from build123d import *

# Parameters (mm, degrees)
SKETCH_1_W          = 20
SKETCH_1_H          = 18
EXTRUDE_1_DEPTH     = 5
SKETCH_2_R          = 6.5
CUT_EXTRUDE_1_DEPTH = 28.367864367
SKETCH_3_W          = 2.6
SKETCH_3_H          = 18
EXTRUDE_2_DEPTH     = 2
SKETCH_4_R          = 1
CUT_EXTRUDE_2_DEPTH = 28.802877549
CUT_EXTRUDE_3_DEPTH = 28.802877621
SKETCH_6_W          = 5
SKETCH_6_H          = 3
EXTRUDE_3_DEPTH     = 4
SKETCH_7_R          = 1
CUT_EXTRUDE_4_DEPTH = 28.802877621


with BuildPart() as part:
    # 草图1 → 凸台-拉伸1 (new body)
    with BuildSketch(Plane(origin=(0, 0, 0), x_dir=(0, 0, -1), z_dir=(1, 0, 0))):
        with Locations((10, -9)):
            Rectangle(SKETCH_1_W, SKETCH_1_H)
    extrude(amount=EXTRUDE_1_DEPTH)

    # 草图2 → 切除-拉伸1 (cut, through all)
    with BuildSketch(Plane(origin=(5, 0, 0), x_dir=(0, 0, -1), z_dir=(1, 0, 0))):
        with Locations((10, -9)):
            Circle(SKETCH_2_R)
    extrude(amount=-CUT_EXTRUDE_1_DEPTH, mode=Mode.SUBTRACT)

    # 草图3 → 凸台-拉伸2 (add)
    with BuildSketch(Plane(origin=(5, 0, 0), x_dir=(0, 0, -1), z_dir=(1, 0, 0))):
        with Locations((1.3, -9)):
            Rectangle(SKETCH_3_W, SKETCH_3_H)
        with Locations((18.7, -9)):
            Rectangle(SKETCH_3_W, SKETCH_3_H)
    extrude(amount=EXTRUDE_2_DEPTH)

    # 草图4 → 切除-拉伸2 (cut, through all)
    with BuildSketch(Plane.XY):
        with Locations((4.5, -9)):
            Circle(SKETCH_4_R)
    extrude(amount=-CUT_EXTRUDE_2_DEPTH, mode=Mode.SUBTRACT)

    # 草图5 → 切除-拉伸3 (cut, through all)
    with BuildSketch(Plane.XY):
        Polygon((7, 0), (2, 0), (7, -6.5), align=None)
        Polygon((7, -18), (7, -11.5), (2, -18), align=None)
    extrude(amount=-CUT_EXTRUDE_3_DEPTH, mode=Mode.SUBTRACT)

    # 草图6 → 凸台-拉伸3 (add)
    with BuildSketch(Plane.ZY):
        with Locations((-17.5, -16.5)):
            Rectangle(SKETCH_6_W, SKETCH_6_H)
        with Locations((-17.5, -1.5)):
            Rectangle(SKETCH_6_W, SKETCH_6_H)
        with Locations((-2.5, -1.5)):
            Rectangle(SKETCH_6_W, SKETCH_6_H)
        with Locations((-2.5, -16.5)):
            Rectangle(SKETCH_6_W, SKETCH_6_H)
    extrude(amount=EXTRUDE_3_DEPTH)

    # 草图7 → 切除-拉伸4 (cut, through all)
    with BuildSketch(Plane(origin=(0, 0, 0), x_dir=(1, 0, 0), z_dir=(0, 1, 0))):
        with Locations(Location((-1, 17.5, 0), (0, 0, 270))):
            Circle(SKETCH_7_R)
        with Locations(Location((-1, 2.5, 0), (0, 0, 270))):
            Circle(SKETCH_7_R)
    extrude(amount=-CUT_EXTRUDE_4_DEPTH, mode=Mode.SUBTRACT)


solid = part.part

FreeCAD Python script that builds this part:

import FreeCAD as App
import Part
import Sketcher
from FreeCAD import Vector

doc = App.newDocument("Part")
params = doc.addObject("Spreadsheet::Sheet", "Params")
for row, (alias, value) in enumerate([
    ("sketch1_width", "18 mm"),
    ("sketch1_height", "20 mm"),
    ("pad1_length", "5 mm"),
    ("sketch2_diameter", "13 mm"),
    ("sketch3_width", "18 mm"),
    ("sketch3_height", "2.6 mm"),
    ("pad2_length", "2 mm"),
    ("sketch4_diameter", "2 mm"),
    ("sketch5_width", "5 mm"),
    ("sketch5_height", "6.5 mm"),
    ("sketch6_width", "3 mm"),
    ("sketch6_height", "5 mm"),
    ("pad3_length", "4 mm"),
    ("sketch7_diameter", "2 mm"),
], start=1):
    params.set(f"A{row}", alias)
    params.set(f"B{row}", "=" + value)
    params.setAlias(f"B{row}", alias)

body = doc.addObject("PartDesign::Body", "Body")

sketch1 = body.newObject("Sketcher::SketchObject", "Sketch")
sketch1.AttachmentSupport = (doc.getObject("YZ_Plane"), [""])
sketch1.MapMode = "FlatFace"
sketch1.addGeometry([
    Part.LineSegment(Vector(0, 0, 0), Vector(-18, 0, 0)),
    Part.LineSegment(Vector(-18, 0, 0), Vector(-18, -20, 0)),
    Part.LineSegment(Vector(-18, -20, 0), Vector(0, -20, 0)),
    Part.LineSegment(Vector(0, -20, 0), Vector(0, 0, 0)),
], False)
sketch1.addConstraint([
    Sketcher.Constraint("Coincident", 0, 2, 1, 1),
    Sketcher.Constraint("Coincident", 1, 2, 2, 1),
    Sketcher.Constraint("Coincident", 2, 2, 3, 1),
    Sketcher.Constraint("Coincident", 3, 2, 0, 1),
    Sketcher.Constraint("Horizontal", 0),
    Sketcher.Constraint("Vertical", 1),
    Sketcher.Constraint("Horizontal", 2),
    Sketcher.Constraint("Vertical", 3),
    Sketcher.Constraint("Coincident", 3, 2, -1, 1),
    Sketcher.Constraint("DistanceX", 0, 2, 0, 1, 18.0),
    Sketcher.Constraint("DistanceY", 1, 2, 1, 1, 20.0),
])
sketch1.setExpression("Constraints[9]", "Params.sketch1_width")
sketch1.setExpression("Constraints[10]", "Params.sketch1_height")
pad1 = body.newObject("PartDesign::Pad", "Pad")
pad1.Profile = sketch1
pad1.setExpression("Length", "Params.pad1_length")

sketch2 = body.newObject("Sketcher::SketchObject", "Sketch001")
sketch2.AttachmentSupport = (doc.getObject("YZ_Plane"), [""])
sketch2.MapMode = "FlatFace"
sketch2.AttachmentOffset = App.Placement(Vector(0, 0, 5), App.Rotation())
sketch2.addGeometry(Part.Circle(Vector(-9, -10, 0), Vector(0, 0, 1), 6.5), False)
sketch2.addConstraint([
    Sketcher.Constraint("Diameter", 0, 13.0),
    Sketcher.Constraint("DistanceX", 0, 3, -1, 1, 9.0),
    Sketcher.Constraint("DistanceY", 0, 3, -1, 1, 10.0),
])
sketch2.setExpression("Constraints[0]", "Params.sketch2_diameter")
pocket1 = body.newObject("PartDesign::Pocket", "Pocket")
pocket1.Profile = sketch2
pocket1.Type = "ThroughAll"

sketch3 = body.newObject("Sketcher::SketchObject", "Sketch002")
sketch3.AttachmentSupport = (doc.getObject("YZ_Plane"), [""])
sketch3.MapMode = "FlatFace"
sketch3.AttachmentOffset = App.Placement(Vector(0, 0, 5), App.Rotation())
sketch3.addGeometry([
    Part.LineSegment(Vector(0, 0, 0), Vector(-18, 0, 0)),
    Part.LineSegment(Vector(-18, 0, 0), Vector(-18, -2.6, 0)),
    Part.LineSegment(Vector(-18, -2.6, 0), Vector(0, -2.6, 0)),
    Part.LineSegment(Vector(0, -2.6, 0), Vector(0, 0, 0)),
    Part.LineSegment(Vector(0, -17.4, 0), Vector(-18, -17.4, 0)),
    Part.LineSegment(Vector(-18, -17.4, 0), Vector(-18, -20, 0)),
    Part.LineSegment(Vector(-18, -20, 0), Vector(0, -20, 0)),
    Part.LineSegment(Vector(0, -20, 0), Vector(0, -17.4, 0)),
], False)
sketch3.addConstraint([
    Sketcher.Constraint("Coincident", 0, 2, 1, 1),
    Sketcher.Constraint("Coincident", 1, 2, 2, 1),
    Sketcher.Constraint("Coincident", 2, 2, 3, 1),
    Sketcher.Constraint("Coincident", 3, 2, 0, 1),
    Sketcher.Constraint("Coincident", 4, 2, 5, 1),
    Sketcher.Constraint("Coincident", 5, 2, 6, 1),
    Sketcher.Constraint("Coincident", 6, 2, 7, 1),
    Sketcher.Constraint("Coincident", 7, 2, 4, 1),
    Sketcher.Constraint("Horizontal", 0),
    Sketcher.Constraint("Vertical", 1),
    Sketcher.Constraint("Horizontal", 2),
    Sketcher.Constraint("Vertical", 3),
    Sketcher.Constraint("Horizontal", 4),
    Sketcher.Constraint("Vertical", 5),
    Sketcher.Constraint("Horizontal", 6),
    Sketcher.Constraint("Vertical", 7),
    Sketcher.Constraint("Coincident", 3, 2, -1, 1),
    Sketcher.Constraint("PointOnObject", 6, 2, -2),
    Sketcher.Constraint("Vertical", 1, 2, 4, 2),
    Sketcher.Constraint("Equal", 3, 5),
    Sketcher.Constraint("DistanceX", 0, 2, 0, 1, 18.0),
    Sketcher.Constraint("DistanceY", 1, 2, 1, 1, 2.6),
    Sketcher.Constraint("DistanceY", 5, 2, -1, 1, 20.0),
])
sketch3.setExpression("Constraints[20]", "Params.sketch3_width")
sketch3.setExpression("Constraints[21]", "Params.sketch3_height")
pad2 = body.newObject("PartDesign::Pad", "Pad001")
pad2.Profile = sketch3
pad2.setExpression("Length", "Params.pad2_length")

sketch4 = body.newObject("Sketcher::SketchObject", "Sketch003")
sketch4.AttachmentSupport = (doc.getObject("XY_Plane"), [""])
sketch4.MapMode = "FlatFace"
sketch4.addGeometry(Part.Circle(Vector(4.5, -9, 0), Vector(0, 0, 1), 1), False)
sketch4.addConstraint([
    Sketcher.Constraint("Diameter", 0, 2.0),
    Sketcher.Constraint("DistanceY", 0, 3, -1, 1, 9.0),
    Sketcher.Constraint("DistanceX", -1, 1, 0, 3, 4.5),
])
sketch4.setExpression("Constraints[0]", "Params.sketch4_diameter")
pocket2 = body.newObject("PartDesign::Pocket", "Pocket001")
pocket2.Profile = sketch4
pocket2.Type = "ThroughAll"

sketch5 = body.newObject("Sketcher::SketchObject", "Sketch004")
sketch5.AttachmentSupport = (doc.getObject("XY_Plane"), [""])
sketch5.MapMode = "FlatFace"
sketch5.addGeometry([
    Part.LineSegment(Vector(7, 0, 0), Vector(2, 0, 0)),
    Part.LineSegment(Vector(2, 0, 0), Vector(7, -6.5, 0)),
    Part.LineSegment(Vector(7, -6.5, 0), Vector(7, 0, 0)),
    Part.LineSegment(Vector(7, -18, 0), Vector(7, -11.5, 0)),
    Part.LineSegment(Vector(7, -11.5, 0), Vector(2, -18, 0)),
    Part.LineSegment(Vector(2, -18, 0), Vector(7, -18, 0)),
], False)
sketch5.addConstraint([
    Sketcher.Constraint("Coincident", 0, 2, 1, 1),
    Sketcher.Constraint("Coincident", 1, 2, 2, 1),
    Sketcher.Constraint("Coincident", 2, 2, 0, 1),
    Sketcher.Constraint("Coincident", 3, 2, 4, 1),
    Sketcher.Constraint("Coincident", 4, 2, 5, 1),
    Sketcher.Constraint("Coincident", 5, 2, 3, 1),
    Sketcher.Constraint("Horizontal", 0),
    Sketcher.Constraint("Vertical", 2),
    Sketcher.Constraint("Vertical", 3),
    Sketcher.Constraint("Horizontal", 5),
    Sketcher.Constraint("PointOnObject", 0, 2, -1),
    Sketcher.Constraint("Vertical", 2, 2, 3, 2),
    Sketcher.Constraint("Vertical", 0, 2, 4, 2),
    Sketcher.Constraint("Equal", 2, 3),
    Sketcher.Constraint("DistanceX", 0, 2, 0, 1, 5.0),
    Sketcher.Constraint("DistanceY", 2, 1, 2, 2, 6.5),
    Sketcher.Constraint("DistanceX", -1, 1, 0, 2, 2.0),
    Sketcher.Constraint("DistanceY", 4, 2, -1, 1, 18.0),
])
sketch5.setExpression("Constraints[14]", "Params.sketch5_width")
sketch5.setExpression("Constraints[15]", "Params.sketch5_height")
pocket3 = body.newObject("PartDesign::Pocket", "Pocket002")
pocket3.Profile = sketch5
pocket3.Type = "ThroughAll"

sketch6 = body.newObject("Sketcher::SketchObject", "Sketch005")
sketch6.AttachmentSupport = (doc.getObject("YZ_Plane"), [""])
sketch6.MapMode = "FlatFace"
sketch6.addGeometry([
    Part.LineSegment(Vector(-15, -20, 0), Vector(-18, -20, 0)),
    Part.LineSegment(Vector(-18, -20, 0), Vector(-18, -15, 0)),
    Part.LineSegment(Vector(-18, -15, 0), Vector(-15, -15, 0)),
    Part.LineSegment(Vector(-15, -15, 0), Vector(-15, -20, 0)),
    Part.LineSegment(Vector(0, -20, 0), Vector(-3, -20, 0)),
    Part.LineSegment(Vector(-3, -20, 0), Vector(-3, -15, 0)),
    Part.LineSegment(Vector(-3, -15, 0), Vector(0, -15, 0)),
    Part.LineSegment(Vector(0, -15, 0), Vector(0, -20, 0)),
    Part.LineSegment(Vector(0, -5, 0), Vector(-3, -5, 0)),
    Part.LineSegment(Vector(-3, -5, 0), Vector(-3, 0, 0)),
    Part.LineSegment(Vector(-3, 0, 0), Vector(0, 0, 0)),
    Part.LineSegment(Vector(0, 0, 0), Vector(0, -5, 0)),
    Part.LineSegment(Vector(-15, -5, 0), Vector(-18, -5, 0)),
    Part.LineSegment(Vector(-18, -5, 0), Vector(-18, 0, 0)),
    Part.LineSegment(Vector(-18, 0, 0), Vector(-15, 0, 0)),
    Part.LineSegment(Vector(-15, 0, 0), Vector(-15, -5, 0)),
], False)
sketch6.addConstraint([
    Sketcher.Constraint("Coincident", 0, 2, 1, 1),
    Sketcher.Constraint("Coincident", 1, 2, 2, 1),
    Sketcher.Constraint("Coincident", 2, 2, 3, 1),
    Sketcher.Constraint("Coincident", 3, 2, 0, 1),
    Sketcher.Constraint("Coincident", 4, 2, 5, 1),
    Sketcher.Constraint("Coincident", 5, 2, 6, 1),
    Sketcher.Constraint("Coincident", 6, 2, 7, 1),
    Sketcher.Constraint("Coincident", 7, 2, 4, 1),
    Sketcher.Constraint("Coincident", 8, 2, 9, 1),
    Sketcher.Constraint("Coincident", 9, 2, 10, 1),
    Sketcher.Constraint("Coincident", 10, 2, 11, 1),
    Sketcher.Constraint("Coincident", 11, 2, 8, 1),
    Sketcher.Constraint("Coincident", 12, 2, 13, 1),
    Sketcher.Constraint("Coincident", 13, 2, 14, 1),
    Sketcher.Constraint("Coincident", 14, 2, 15, 1),
    Sketcher.Constraint("Coincident", 15, 2, 12, 1),
    Sketcher.Constraint("Horizontal", 0),
    Sketcher.Constraint("Vertical", 1),
    Sketcher.Constraint("Horizontal", 2),
    Sketcher.Constraint("Vertical", 3),
    Sketcher.Constraint("Horizontal", 4),
    Sketcher.Constraint("Vertical", 5),
    Sketcher.Constraint("Horizontal", 6),
    Sketcher.Constraint("Vertical", 7),
    Sketcher.Constraint("Horizontal", 8),
    Sketcher.Constraint("Vertical", 9),
    Sketcher.Constraint("Horizontal", 10),
    Sketcher.Constraint("Vertical", 11),
    Sketcher.Constraint("Horizontal", 12),
    Sketcher.Constraint("Vertical", 13),
    Sketcher.Constraint("Horizontal", 14),
    Sketcher.Constraint("Vertical", 15),
    Sketcher.Constraint("Coincident", 10, 2, -1, 1),
    Sketcher.Constraint("PointOnObject", 6, 2, -2),
    Sketcher.Constraint("PointOnObject", 13, 2, -1),
    Sketcher.Constraint("Horizontal", 3, 2, 4, 2),
    Sketcher.Constraint("Horizontal", 2, 2, 5, 2),
    Sketcher.Constraint("Horizontal", 11, 2, 12, 2),
    Sketcher.Constraint("Vertical", 5, 2, 8, 2),
    Sketcher.Constraint("Vertical", 1, 2, 12, 2),
    Sketcher.Constraint("Vertical", 3, 2, 14, 2),
    Sketcher.Constraint("Equal", 2, 4),
    Sketcher.Constraint("Equal", 7, 9),
    Sketcher.Constraint("DistanceX", 0, 2, 0, 1, 3.0),
    Sketcher.Constraint("DistanceY", 1, 1, 1, 2, 5.0),
    Sketcher.Constraint("DistanceX", 0, 2, -1, 1, 18.0),
    Sketcher.Constraint("DistanceY", 0, 2, -1, 1, 20.0),
])
sketch6.setExpression("Constraints[43]", "Params.sketch6_width")
sketch6.setExpression("Constraints[44]", "Params.sketch6_height")
pad3 = body.newObject("PartDesign::Pad", "Pad002")
pad3.Profile = sketch6
pad3.setExpression("Length", "Params.pad3_length")
pad3.Reversed = True

sketch7 = body.newObject("Sketcher::SketchObject", "Sketch006")
sketch7.AttachmentSupport = (doc.getObject("XZ_Plane"), [""])
sketch7.MapMode = "FlatFace"
sketch7.addGeometry([
    Part.Circle(Vector(-1, -17.5, 0), Vector(0, 0, 1), 1),
    Part.Circle(Vector(-1, -2.5, 0), Vector(0, 0, 1), 1),
], False)
sketch7.addConstraint([
    Sketcher.Constraint("Equal", 0, 1),
    Sketcher.Constraint("Vertical", 0, 3, 1, 3),
    Sketcher.Constraint("Diameter", 0, 2.0),
    Sketcher.Constraint("DistanceX", 0, 3, -1, 1, 1.0),
    Sketcher.Constraint("DistanceY", 0, 3, 1, 3, 15.0),
    Sketcher.Constraint("DistanceY", 0, 3, -1, 1, 17.5),
])
sketch7.setExpression("Constraints[2]", "Params.sketch7_diameter")
pocket4 = body.newObject("PartDesign::Pocket", "Pocket003")
pocket4.Profile = sketch7
pocket4.Type = "ThroughAll"
pocket4.Reversed = True

doc.recompute()
